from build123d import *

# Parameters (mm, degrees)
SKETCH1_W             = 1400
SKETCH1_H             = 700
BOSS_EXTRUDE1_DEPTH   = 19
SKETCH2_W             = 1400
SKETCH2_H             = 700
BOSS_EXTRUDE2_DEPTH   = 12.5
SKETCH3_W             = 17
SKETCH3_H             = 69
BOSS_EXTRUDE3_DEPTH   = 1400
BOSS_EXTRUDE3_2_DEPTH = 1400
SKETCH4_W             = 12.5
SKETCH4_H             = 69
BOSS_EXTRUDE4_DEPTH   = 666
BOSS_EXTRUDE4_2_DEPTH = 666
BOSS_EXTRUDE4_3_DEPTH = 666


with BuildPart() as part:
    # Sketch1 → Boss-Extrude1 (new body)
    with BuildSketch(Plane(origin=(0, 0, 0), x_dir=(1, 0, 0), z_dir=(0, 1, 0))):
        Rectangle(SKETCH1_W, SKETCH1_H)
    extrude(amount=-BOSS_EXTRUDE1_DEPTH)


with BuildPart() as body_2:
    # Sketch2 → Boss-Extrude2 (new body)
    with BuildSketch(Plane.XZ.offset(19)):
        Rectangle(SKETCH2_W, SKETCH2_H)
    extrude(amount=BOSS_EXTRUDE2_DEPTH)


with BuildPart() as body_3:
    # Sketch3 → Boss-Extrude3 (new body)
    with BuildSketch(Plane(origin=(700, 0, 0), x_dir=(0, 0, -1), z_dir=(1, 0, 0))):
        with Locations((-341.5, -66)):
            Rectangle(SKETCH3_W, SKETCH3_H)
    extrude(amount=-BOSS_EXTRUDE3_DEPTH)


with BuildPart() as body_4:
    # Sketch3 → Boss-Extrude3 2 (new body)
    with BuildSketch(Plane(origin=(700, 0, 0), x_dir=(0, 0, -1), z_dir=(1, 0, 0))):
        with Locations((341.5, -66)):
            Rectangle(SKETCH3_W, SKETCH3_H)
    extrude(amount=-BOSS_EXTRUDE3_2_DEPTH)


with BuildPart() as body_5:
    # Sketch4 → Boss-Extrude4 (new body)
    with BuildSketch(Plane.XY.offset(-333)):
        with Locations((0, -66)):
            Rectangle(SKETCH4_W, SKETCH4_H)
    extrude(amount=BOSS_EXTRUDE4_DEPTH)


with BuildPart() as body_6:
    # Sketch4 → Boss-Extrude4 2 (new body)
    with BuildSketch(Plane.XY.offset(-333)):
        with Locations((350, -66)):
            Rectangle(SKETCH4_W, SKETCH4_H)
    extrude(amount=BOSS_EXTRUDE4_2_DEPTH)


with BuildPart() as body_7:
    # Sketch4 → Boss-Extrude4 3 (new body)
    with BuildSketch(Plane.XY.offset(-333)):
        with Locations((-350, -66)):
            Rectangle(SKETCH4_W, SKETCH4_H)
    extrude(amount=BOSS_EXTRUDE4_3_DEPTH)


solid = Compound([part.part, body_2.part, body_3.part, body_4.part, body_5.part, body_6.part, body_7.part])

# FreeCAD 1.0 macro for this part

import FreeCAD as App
import Part
import Sketcher


def add_polygon(sketch, points):
    """Adds a closed chain of lines whose ends are joined by coincident constraints."""
    first, n = sketch.GeometryCount, len(points)
    for a, b in zip(points, points[1:] + points[:1]):
        sketch.addGeometry(Part.LineSegment(App.Vector(*a, 0), App.Vector(*b, 0)), False)
    for i in range(n):
        sketch.addConstraint(Sketcher.Constraint("Coincident", first + i, 2, first + (i + 1) % n, 1))

doc = App.newDocument("Part")
body = doc.addObject("PartDesign::Body", "Body")

# Sketch on XZ plane
sketch1 = body.newObject("Sketcher::SketchObject", "Sketch")
sketch1.AttachmentSupport = (doc.getObject("XZ_Plane"), [""])
sketch1.MapMode = "FlatFace"
add_polygon(sketch1, [(-700, -350), (-700, 350), (700, 350), (700, -350)])  # lines 0-3
sketch1.addConstraint(Sketcher.Constraint("Vertical", 0))
sketch1.addConstraint(Sketcher.Constraint("Horizontal", 1))
sketch1.addConstraint(Sketcher.Constraint("Vertical", 2))
sketch1.addConstraint(Sketcher.Constraint("Horizontal", 3))
sketch1.addConstraint(Sketcher.Constraint("Symmetric", 0, 2, 2, 2, -1, 1))
sketch1.addConstraint(Sketcher.Constraint("DistanceX", 1, 1, 1, 2, 1400.0))
sketch1.addConstraint(Sketcher.Constraint("DistanceY", 0, 1, 0, 2, 700.0))
pad1 = body.newObject("PartDesign::Pad", "Pad")
pad1.Profile = sketch1
pad1.Length = 19
body2 = doc.addObject("PartDesign::Body", "Body001")

# Sketch on XZ plane
sketch2 = body2.newObject("Sketcher::SketchObject", "Sketch001")
sketch2.AttachmentSupport = (doc.getObject("XZ_Plane001"), [""])
sketch2.MapMode = "FlatFace"
sketch2.AttachmentOffset = App.Placement(App.Vector(0, 0, 19), App.Rotation())
add_polygon(sketch2, [(-700, 350), (-700, -350), (700, -350), (700, 350)])  # lines 0-3
sketch2.addConstraint(Sketcher.Constraint("Vertical", 0))
sketch2.addConstraint(Sketcher.Constraint("Horizontal", 1))
sketch2.addConstraint(Sketcher.Constraint("Vertical", 2))
sketch2.addConstraint(Sketcher.Constraint("Horizontal", 3))
sketch2.addConstraint(Sketcher.Constraint("Symmetric", 0, 2, 2, 2, -1, 1))
sketch2.addConstraint(Sketcher.Constraint("DistanceX", 1, 1, 1, 2, 1400.0))
sketch2.addConstraint(Sketcher.Constraint("DistanceY", 0, 2, 0, 1, 700.0))
pad2 = body2.newObject("PartDesign::Pad", "Pad001")
pad2.Profile = sketch2
pad2.Length = 12.5
body3 = doc.addObject("PartDesign::Body", "Body002")

# Sketch on YZ plane
sketch3 = body3.newObject("Sketcher::SketchObject", "Sketch002")
sketch3.AttachmentSupport = (doc.getObject("YZ_Plane002"), [""])
sketch3.MapMode = "FlatFace"
sketch3.AttachmentOffset = App.Placement(App.Vector(0, 0, 700), App.Rotation())
add_polygon(sketch3, [(-32, 350), (-100, 350), (-100, 333), (-32, 333)])  # lines 0-3
sketch3.addConstraint(Sketcher.Constraint("Horizontal", 0))
sketch3.addConstraint(Sketcher.Constraint("Vertical", 1))
sketch3.addConstraint(Sketcher.Constraint("Horizontal", 2))
sketch3.addConstraint(Sketcher.Constraint("Vertical", 3))
sketch3.addConstraint(Sketcher.Constraint("DistanceX", 0, 2, 0, 1, 69.0))
sketch3.addConstraint(Sketcher.Constraint("DistanceY", 1, 2, 1, 1, 17.0))
sketch3.addConstraint(Sketcher.Constraint("DistanceY", -1, 1, 0, 2, 350.0))
sketch3.addConstraint(Sketcher.Constraint("DistanceX", 0, 2, -1, 1, 100.5))
pad3 = body3.newObject("PartDesign::Pad", "Pad002")
pad3.Profile = sketch3
pad3.Length = 1400
pad3.Reversed = True
body4 = doc.addObject("PartDesign::Body", "Body003")

# Sketch on YZ plane
sketch4 = body4.newObject("Sketcher::SketchObject", "Sketch003")
sketch4.AttachmentSupport = (doc.getObject("YZ_Plane003"), [""])
sketch4.MapMode = "FlatFace"
sketch4.AttachmentOffset = App.Placement(App.Vector(0, 0, 700), App.Rotation())
add_polygon(sketch4, [(-32, -333), (-100, -333), (-100, -350), (-32, -350)])  # lines 0-3
sketch4.addConstraint(Sketcher.Constraint("Horizontal", 0))
sketch4.addConstraint(Sketcher.Constraint("Vertical", 1))
sketch4.addConstraint(Sketcher.Constraint("Horizontal", 2))
sketch4.addConstraint(Sketcher.Constraint("Vertical", 3))
sketch4.addConstraint(Sketcher.Constraint("DistanceX", 0, 2, 0, 1, 69.0))
sketch4.addConstraint(Sketcher.Constraint("DistanceY", 1, 2, 1, 1, 17.0))
sketch4.addConstraint(Sketcher.Constraint("DistanceY", 0, 2, -1, 1, 333.0))
sketch4.addConstraint(Sketcher.Constraint("DistanceX", 0, 2, -1, 1, 100.5))
pad4 = body4.newObject("PartDesign::Pad", "Pad003")
pad4.Profile = sketch4
pad4.Length = 1400
pad4.Reversed = True
body5 = doc.addObject("PartDesign::Body", "Body004")

# Sketch on XY plane
sketch5 = body5.newObject("Sketcher::SketchObject", "Sketch004")
sketch5.AttachmentSupport = (doc.getObject("XY_Plane004"), [""])
sketch5.MapMode = "FlatFace"
sketch5.AttachmentOffset = App.Placement(App.Vector(0, 0, -333), App.Rotation())
add_polygon(sketch5, [(-6, -32), (-6, -100), (6, -100), (6, -32)])  # lines 0-3
sketch5.addConstraint(Sketcher.Constraint("Vertical", 0))
sketch5.addConstraint(Sketcher.Constraint("Horizontal", 1))
sketch5.addConstraint(Sketcher.Constraint("Vertical", 2))
sketch5.addConstraint(Sketcher.Constraint("Horizontal", 3))
sketch5.addConstraint(Sketcher.Constraint("DistanceY", 0, 2, 0, 1, 69.0))
sketch5.addConstraint(Sketcher.Constraint("DistanceX", 1, 1, 1, 2, 12.5))
sketch5.addConstraint(Sketcher.Constraint("DistanceY", 0, 2, -1, 1, 100.5))
sketch5.addConstraint(Sketcher.Constraint("DistanceX", 0, 2, -1, 1, 6.25))
pad5 = body5.newObject("PartDesign::Pad", "Pad004")
pad5.Profile = sketch5
pad5.Length = 666
body6 = doc.addObject("PartDesign::Body", "Body005")

# Sketch on XY plane
sketch6 = body6.newObject("Sketcher::SketchObject", "Sketch005")
sketch6.AttachmentSupport = (doc.getObject("XY_Plane005"), [""])
sketch6.MapMode = "FlatFace"
sketch6.AttachmentOffset = App.Placement(App.Vector(0, 0, -333), App.Rotation())
add_polygon(sketch6, [(344, -32), (344, -100), (356, -100), (356, -32)])  # lines 0-3
sketch6.addConstraint(Sketcher.Constraint("Vertical", 0))
sketch6.addConstraint(Sketcher.Constraint("Horizontal", 1))
sketch6.addConstraint(Sketcher.Constraint("Vertical", 2))
sketch6.addConstraint(Sketcher.Constraint("Horizontal", 3))
sketch6.addConstraint(Sketcher.Constraint("DistanceY", 0, 2, 0, 1, 69.0))
sketch6.addConstraint(Sketcher.Constraint("DistanceX", 1, 1, 1, 2, 12.5))
sketch6.addConstraint(Sketcher.Constraint("DistanceY", 0, 2, -1, 1, 100.5))
sketch6.addConstraint(Sketcher.Constraint("DistanceX", -1, 1, 0, 2, 343.75))
pad6 = body6.newObject("PartDesign::Pad", "Pad005")
pad6.Profile = sketch6
pad6.Length = 666
body7 = doc.addObject("PartDesign::Body", "Body006")

# Sketch on XY plane
sketch7 = body7.newObject("Sketcher::SketchObject", "Sketch006")
sketch7.AttachmentSupport = (doc.getObject("XY_Plane006"), [""])
sketch7.MapMode = "FlatFace"
sketch7.AttachmentOffset = App.Placement(App.Vector(0, 0, -333), App.Rotation())
add_polygon(sketch7, [(-356, -32), (-356, -100), (-344, -100), (-344, -32)])  # lines 0-3
sketch7.addConstraint(Sketcher.Constraint("Vertical", 0))
sketch7.addConstraint(Sketcher.Constraint("Horizontal", 1))
sketch7.addConstraint(Sketcher.Constraint("Vertical", 2))
sketch7.addConstraint(Sketcher.Constraint("Horizontal", 3))
sketch7.addConstraint(Sketcher.Constraint("DistanceY", 0, 2, 0, 1, 69.0))
sketch7.addConstraint(Sketcher.Constraint("DistanceX", 1, 1, 1, 2, 12.5))
sketch7.addConstraint(Sketcher.Constraint("DistanceY", 0, 2, -1, 1, 100.5))
sketch7.addConstraint(Sketcher.Constraint("DistanceX", 0, 2, -1, 1, 356.25))
pad7 = body7.newObject("PartDesign::Pad", "Pad006")
pad7.Profile = sketch7
pad7.Length = 666

doc.recompute()
